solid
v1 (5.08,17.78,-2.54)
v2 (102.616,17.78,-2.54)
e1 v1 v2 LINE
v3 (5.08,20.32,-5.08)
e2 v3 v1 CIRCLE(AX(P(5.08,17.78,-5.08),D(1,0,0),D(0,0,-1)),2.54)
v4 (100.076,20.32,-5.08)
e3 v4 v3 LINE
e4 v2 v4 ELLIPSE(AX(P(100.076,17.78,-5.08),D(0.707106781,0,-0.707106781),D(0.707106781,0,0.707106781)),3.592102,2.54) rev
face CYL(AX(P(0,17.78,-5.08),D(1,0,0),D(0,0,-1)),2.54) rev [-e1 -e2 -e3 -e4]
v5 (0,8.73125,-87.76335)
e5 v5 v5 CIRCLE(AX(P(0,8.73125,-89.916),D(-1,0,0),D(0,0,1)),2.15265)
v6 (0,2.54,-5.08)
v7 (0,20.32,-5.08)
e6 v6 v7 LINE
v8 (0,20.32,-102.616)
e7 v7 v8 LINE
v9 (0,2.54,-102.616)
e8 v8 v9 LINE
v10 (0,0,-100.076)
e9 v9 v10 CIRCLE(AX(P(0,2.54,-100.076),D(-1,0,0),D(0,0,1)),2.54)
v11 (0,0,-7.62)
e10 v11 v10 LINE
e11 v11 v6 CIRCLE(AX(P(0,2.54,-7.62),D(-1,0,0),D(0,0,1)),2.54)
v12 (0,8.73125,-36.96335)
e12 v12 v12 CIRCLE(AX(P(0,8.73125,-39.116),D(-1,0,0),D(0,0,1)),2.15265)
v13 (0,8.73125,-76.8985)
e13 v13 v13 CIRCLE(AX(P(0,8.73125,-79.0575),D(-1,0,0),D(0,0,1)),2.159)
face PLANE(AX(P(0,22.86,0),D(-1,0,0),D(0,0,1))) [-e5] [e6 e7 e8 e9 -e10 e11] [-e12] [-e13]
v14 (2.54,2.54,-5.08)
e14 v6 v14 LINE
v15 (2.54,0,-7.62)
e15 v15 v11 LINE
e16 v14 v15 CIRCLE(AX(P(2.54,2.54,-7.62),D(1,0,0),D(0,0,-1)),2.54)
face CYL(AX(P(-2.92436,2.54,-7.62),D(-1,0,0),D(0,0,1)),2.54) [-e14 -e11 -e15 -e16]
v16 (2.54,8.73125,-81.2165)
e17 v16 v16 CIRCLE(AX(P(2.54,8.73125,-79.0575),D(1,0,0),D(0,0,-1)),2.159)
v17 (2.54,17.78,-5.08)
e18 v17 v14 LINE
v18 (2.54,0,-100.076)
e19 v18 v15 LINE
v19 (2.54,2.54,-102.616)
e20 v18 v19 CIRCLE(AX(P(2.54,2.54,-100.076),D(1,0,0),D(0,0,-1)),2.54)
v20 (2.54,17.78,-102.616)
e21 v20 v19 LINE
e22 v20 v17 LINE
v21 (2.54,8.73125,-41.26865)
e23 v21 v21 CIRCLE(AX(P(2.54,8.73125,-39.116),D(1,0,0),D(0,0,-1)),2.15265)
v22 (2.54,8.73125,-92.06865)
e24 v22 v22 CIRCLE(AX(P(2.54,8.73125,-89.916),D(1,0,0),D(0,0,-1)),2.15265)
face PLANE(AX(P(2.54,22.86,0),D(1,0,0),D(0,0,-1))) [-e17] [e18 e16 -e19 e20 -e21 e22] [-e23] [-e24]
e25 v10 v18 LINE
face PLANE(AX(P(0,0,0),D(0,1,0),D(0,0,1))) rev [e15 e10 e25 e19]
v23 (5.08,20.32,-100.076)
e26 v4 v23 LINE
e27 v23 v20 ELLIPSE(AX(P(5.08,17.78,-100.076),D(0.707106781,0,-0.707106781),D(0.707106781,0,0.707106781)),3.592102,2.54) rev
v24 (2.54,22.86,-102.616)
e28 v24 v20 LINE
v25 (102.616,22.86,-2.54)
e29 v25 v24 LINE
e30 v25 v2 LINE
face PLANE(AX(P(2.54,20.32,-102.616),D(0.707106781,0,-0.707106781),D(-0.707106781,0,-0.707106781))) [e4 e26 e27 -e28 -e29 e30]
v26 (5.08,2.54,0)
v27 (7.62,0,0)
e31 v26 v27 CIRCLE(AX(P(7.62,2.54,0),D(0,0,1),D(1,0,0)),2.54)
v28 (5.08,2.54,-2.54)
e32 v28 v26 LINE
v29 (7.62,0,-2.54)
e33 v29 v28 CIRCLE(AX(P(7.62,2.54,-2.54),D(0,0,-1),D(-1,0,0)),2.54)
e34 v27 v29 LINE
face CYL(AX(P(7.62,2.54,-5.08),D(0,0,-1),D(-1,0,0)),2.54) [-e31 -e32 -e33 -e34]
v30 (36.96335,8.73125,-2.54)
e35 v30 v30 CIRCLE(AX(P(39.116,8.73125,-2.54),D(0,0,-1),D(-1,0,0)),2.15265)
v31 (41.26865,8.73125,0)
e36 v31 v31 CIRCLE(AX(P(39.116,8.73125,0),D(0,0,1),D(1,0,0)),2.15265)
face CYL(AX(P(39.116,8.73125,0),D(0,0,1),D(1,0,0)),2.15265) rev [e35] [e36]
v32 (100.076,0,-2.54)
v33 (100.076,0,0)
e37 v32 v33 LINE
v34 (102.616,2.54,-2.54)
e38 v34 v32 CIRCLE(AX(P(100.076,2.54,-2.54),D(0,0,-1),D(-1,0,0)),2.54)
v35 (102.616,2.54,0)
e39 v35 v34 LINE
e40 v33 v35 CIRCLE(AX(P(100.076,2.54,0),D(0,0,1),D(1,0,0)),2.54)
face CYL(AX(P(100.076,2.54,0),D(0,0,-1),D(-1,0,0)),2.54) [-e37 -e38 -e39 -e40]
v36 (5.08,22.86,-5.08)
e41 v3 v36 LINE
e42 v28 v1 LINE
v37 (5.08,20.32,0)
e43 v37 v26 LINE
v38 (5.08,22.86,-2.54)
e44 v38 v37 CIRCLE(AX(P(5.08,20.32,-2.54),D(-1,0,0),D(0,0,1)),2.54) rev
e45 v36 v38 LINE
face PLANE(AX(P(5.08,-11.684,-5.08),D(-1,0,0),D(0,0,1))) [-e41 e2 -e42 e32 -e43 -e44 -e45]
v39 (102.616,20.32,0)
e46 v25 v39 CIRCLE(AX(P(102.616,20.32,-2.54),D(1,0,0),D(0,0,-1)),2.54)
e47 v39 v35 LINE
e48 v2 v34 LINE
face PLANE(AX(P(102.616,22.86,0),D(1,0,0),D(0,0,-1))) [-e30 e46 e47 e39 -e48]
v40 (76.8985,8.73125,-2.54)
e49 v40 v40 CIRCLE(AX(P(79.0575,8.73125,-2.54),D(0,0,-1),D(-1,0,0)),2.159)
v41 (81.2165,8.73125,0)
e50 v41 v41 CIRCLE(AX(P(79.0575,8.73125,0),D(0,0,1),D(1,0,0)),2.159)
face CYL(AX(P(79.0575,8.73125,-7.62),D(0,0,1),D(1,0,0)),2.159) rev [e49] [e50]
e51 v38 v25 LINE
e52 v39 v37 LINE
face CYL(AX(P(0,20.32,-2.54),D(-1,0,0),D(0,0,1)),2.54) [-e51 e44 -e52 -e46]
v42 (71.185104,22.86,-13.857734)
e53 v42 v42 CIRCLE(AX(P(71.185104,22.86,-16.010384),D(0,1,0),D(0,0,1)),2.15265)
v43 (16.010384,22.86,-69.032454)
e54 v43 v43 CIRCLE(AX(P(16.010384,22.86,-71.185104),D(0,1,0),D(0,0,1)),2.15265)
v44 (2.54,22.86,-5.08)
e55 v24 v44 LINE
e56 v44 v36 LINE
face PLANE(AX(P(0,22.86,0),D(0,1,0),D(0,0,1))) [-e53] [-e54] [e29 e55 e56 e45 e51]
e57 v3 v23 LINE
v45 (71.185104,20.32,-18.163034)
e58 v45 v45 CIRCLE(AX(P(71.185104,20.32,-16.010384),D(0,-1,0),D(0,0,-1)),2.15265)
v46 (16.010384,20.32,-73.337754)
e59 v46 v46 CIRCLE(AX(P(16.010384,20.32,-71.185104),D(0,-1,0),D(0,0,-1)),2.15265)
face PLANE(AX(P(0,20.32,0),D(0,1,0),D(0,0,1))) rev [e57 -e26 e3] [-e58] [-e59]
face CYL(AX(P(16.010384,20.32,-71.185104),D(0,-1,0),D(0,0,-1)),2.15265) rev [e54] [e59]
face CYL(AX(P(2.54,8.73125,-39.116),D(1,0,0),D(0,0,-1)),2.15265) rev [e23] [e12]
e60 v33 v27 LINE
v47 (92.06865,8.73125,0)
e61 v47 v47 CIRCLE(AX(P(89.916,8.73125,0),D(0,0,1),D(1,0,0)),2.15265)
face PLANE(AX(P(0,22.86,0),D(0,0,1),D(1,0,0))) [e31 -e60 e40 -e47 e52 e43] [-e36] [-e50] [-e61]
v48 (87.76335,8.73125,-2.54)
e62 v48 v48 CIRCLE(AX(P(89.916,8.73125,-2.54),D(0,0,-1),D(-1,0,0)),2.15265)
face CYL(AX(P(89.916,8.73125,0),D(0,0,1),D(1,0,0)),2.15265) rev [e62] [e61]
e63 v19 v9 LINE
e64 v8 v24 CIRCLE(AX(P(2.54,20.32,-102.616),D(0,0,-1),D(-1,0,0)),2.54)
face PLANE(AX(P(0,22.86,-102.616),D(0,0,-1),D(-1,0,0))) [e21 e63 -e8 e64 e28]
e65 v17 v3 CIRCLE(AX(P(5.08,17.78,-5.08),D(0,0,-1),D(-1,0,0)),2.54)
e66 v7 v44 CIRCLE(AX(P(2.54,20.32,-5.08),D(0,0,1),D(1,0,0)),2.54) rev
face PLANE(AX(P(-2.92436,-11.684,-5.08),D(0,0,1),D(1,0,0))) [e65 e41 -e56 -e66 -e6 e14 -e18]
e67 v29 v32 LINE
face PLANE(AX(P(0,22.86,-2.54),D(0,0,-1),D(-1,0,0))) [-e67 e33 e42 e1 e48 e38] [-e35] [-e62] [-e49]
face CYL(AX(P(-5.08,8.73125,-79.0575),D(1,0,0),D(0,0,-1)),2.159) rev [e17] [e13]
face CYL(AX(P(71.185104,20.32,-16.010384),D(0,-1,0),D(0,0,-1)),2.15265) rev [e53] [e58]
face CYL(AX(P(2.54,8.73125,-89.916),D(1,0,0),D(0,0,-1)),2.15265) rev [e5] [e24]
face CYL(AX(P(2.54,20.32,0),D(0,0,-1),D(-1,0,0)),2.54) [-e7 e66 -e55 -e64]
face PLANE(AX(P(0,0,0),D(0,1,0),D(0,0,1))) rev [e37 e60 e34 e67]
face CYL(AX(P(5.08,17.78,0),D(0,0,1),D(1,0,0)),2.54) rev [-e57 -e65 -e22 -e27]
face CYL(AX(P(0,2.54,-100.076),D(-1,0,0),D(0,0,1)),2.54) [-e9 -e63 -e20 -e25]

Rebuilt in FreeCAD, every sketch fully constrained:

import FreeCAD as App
import Part
import Sketcher
from FreeCAD import Vector
Q = App.Units.Quantity


def edges_at(feature, points):
    """Names of the edges that pass closest to the given points."""
    edges = feature.Shape.Edges
    near = lambda p: min(range(len(edges)), key=lambda i: edges[i].distToShape(Part.Vertex(*p))[0])
    return sorted({f"Edge{near(p) + 1}" for p in points})

doc = App.newDocument("Part")
body = doc.addObject("PartDesign::Body", "Body")

sketch1 = body.newObject("Sketcher::SketchObject", "Sketch")
sketch1.AttachmentSupport = (doc.getObject("XZ_Plane"), [""])
sketch1.MapMode = "FlatFace"
sketch1.addGeometry(Part.LineSegment(Vector(102.6, 0, 0), Vector(102.6, -2.5, 0)), False)
sketch1.addGeometry(Part.LineSegment(Vector(102.6, -2.5, 0), Vector(2.5, -2.5, 0)), False)
sketch1.addGeometry(Part.LineSegment(Vector(2.5, -2.5, 0), Vector(2.5, -102.6, 0)), False)
sketch1.addGeometry(Part.LineSegment(Vector(2.5, -102.6, 0), Vector(0, -102.6, 0)), False)
sketch1.addGeometry(Part.LineSegment(Vector(0, -102.6, 0), Vector(0, 0, 0)), False)
sketch1.addGeometry(Part.LineSegment(Vector(0, 0, 0), Vector(102.6, 0, 0)), False)
sketch1.addConstraint(Sketcher.Constraint("Coincident", 0, 2, 1, 1))
sketch1.addConstraint(Sketcher.Constraint("Coincident", 1, 2, 2, 1))
sketch1.addConstraint(Sketcher.Constraint("Coincident", 2, 2, 3, 1))
sketch1.addConstraint(Sketcher.Constraint("Coincident", 3, 2, 4, 1))
sketch1.addConstraint(Sketcher.Constraint("Coincident", 4, 2, 5, 1))
sketch1.addConstraint(Sketcher.Constraint("Coincident", 5, 2, 0, 1))
sketch1.addConstraint(Sketcher.Constraint("Vertical", 0))
sketch1.addConstraint(Sketcher.Constraint("Horizontal", 1))
sketch1.addConstraint(Sketcher.Constraint("Vertical", 2))
sketch1.addConstraint(Sketcher.Constraint("Horizontal", 3))
sketch1.addConstraint(Sketcher.Constraint("Vertical", 4))
sketch1.addConstraint(Sketcher.Constraint("Horizontal", 5))
sketch1.addConstraint(Sketcher.Constraint("Coincident", 4, 2, -1, 1))
sketch1.addConstraint(Sketcher.Constraint("Equal", 3, 0))
sketch1.addConstraint(Sketcher.Constraint("Equal", 1, 2))
sketch1.addConstraint(Sketcher.Constraint("DistanceX", 3, 2, 3, 1, Q("0.1 in")))
sketch1.addConstraint(Sketcher.Constraint("DistanceX", 1, 2, 1, 1, Q("3.94 in")))
pad1 = body.newObject("PartDesign::Pad", "Pad")
pad1.Profile = sketch1
pad1.Length = Q("0.9 in")
pad1.Reversed = True

sketch2 = body.newObject("Sketcher::SketchObject", "Sketch001")
sketch2.AttachmentSupport = (doc.getObject("XZ_Plane"), [""])
sketch2.MapMode = "FlatFace"
sketch2.AttachmentOffset = App.Placement(Vector(0, 0, -0.9 * 25.4), App.Rotation())
sketch2.addGeometry(Part.LineSegment(Vector(103, -3, 0), Vector(3, -103, 0)), False)
sketch2.addGeometry(Part.LineSegment(Vector(3, -103, 0), Vector(3, -3, 0)), False)
sketch2.addGeometry(Part.LineSegment(Vector(3, -3, 0), Vector(103, -3, 0)), False)
sketch2.addConstraint(Sketcher.Constraint("Coincident", 0, 2, 1, 1))
sketch2.addConstraint(Sketcher.Constraint("Coincident", 1, 2, 2, 1))
sketch2.addConstraint(Sketcher.Constraint("Coincident", 2, 2, 0, 1))
sketch2.addConstraint(Sketcher.Constraint("Vertical", 1))
sketch2.addConstraint(Sketcher.Constraint("Horizontal", 2))
sketch2.addConstraint(Sketcher.Constraint("Equal", 2, 1))
sketch2.addConstraint(Sketcher.Constraint("DistanceX", 2, 1, 2, 2, Q("3.94 in")))
sketch2.addConstraint(Sketcher.Constraint("DistanceX", -1, 1, 0, 2, Q("0.1 in")))
sketch2.addConstraint(Sketcher.Constraint("DistanceY", 1, 2, -1, 1, Q("0.1 in")))
pad2 = body.newObject("PartDesign::Pad", "Pad001")
pad2.Profile = sketch2
pad2.Length = Q("0.1 in")
doc.recompute()

fillet = body.newObject("PartDesign::Fillet", "Fillet")
fillet.Base = (pad2, edges_at(pad2, [
    (0, 22.86, -51.308),
    (51.308, 22.86, 0),
    (2.54, 10.16, -2.54),
    (52.578, 20.32, -2.54),
    (2.54, 20.32, -52.578),
]))
fillet.Radius = Q("0.1 in")

sketch3 = body.newObject("Sketcher::SketchObject", "Sketch002")
sketch3.AttachmentSupport = (doc.getObject("XZ_Plane"), [""])
sketch3.MapMode = "FlatFace"
sketch3.AttachmentOffset = App.Placement(Vector(0, 0, -0.8 * 25.4), App.Rotation())
sketch3.addGeometry(Part.LineSegment(Vector(-3, 2, 0), Vector(-3, -5, 0)), False)
sketch3.addGeometry(Part.LineSegment(Vector(-3, -5, 0), Vector(5, -5, 0)), False)
sketch3.addGeometry(Part.LineSegment(Vector(5, -5, 0), Vector(5, 2, 0)), False)
sketch3.addGeometry(Part.LineSegment(Vector(5, 2, 0), Vector(-3, 2, 0)), False)
sketch3.addConstraint(Sketcher.Constraint("Coincident", 0, 2, 1, 1))
sketch3.addConstraint(Sketcher.Constraint("Coincident", 1, 2, 2, 1))
sketch3.addConstraint(Sketcher.Constraint("Coincident", 2, 2, 3, 1))
sketch3.addConstraint(Sketcher.Constraint("Coincident", 3, 2, 0, 1))
sketch3.addConstraint(Sketcher.Constraint("Vertical", 0))
sketch3.addConstraint(Sketcher.Constraint("Horizontal", 1))
sketch3.addConstraint(Sketcher.Constraint("Vertical", 2))
sketch3.addConstraint(Sketcher.Constraint("Horizontal", 3))
sketch3.addConstraint(Sketcher.Constraint("DistanceY", 0, 2, -1, 1, Q("0.2 in")))
sketch3.addConstraint(Sketcher.Constraint("DistanceX", -1, 1, 1, 2, Q("0.2 in")))
sketch3.addConstraint(Sketcher.Constraint("DistanceX", 1, 1, 1, 2, 8.00436))
sketch3.addConstraint(Sketcher.Constraint("DistanceY", 0, 2, 0, 1, 7.259841))
pocket1 = body.newObject("PartDesign::Pocket", "Pocket")
pocket1.Profile = sketch3
pocket1.Type = "ThroughAll"
pocket1.Midplane = True

sketch4 = body.newObject("Sketcher::SketchObject", "Sketch003")
sketch4.AttachmentSupport = (doc.getObject("YZ_Plane"), [""])
sketch4.MapMode = "FlatFace"
sketch4.AttachmentOffset = App.Placement(Vector(0, 0, 0.1 * 25.4), App.Rotation())
sketch4.addGeometry(Part.Circle(Vector(8.7, -39.1, 0), Vector(0, 0, 1), 2.2), False)
sketch4.addGeometry(Part.Circle(Vector(8.7, -89.9, 0), Vector(0, 0, 1), 2.2), False)
sketch4.addConstraint(Sketcher.Constraint("Equal", 0, 1))
sketch4.addConstraint(Sketcher.Constraint("Vertical", 0, 3, 1, 3))
sketch4.addConstraint(Sketcher.Constraint("DistanceY", 1, 3, 0, 3, Q("2 in")))
sketch4.addConstraint(Sketcher.Constraint("Diameter", 0, Q("0.1695 in")))
sketch4.addConstraint(Sketcher.Constraint("DistanceY", 0, 3, -1, 1, Q("1.54 in")))
sketch4.addConstraint(Sketcher.Constraint("DistanceX", -1, 1, 0, 3, Q("0.34375 in")))
doc.recompute()
hole = body.newObject("PartDesign::Hole", "Hole")
hole.Profile = sketch4
hole.ThreadType = "None"
hole.Diameter = Q("0.1695 in")
hole.DepthType = "Dimension"
hole.Depth = Q("2.93 in")
hole.DrillPoint = "Angled"
hole.DrillPointAngle = 118

sketch5 = body.newObject("Sketcher::SketchObject", "Sketch004")
sketch5.AttachmentSupport = (doc.getObject("XY_Plane"), [""])
sketch5.MapMode = "FlatFace"
sketch5.addGeometry(Part.Circle(Vector(89.9, 8.7, 0), Vector(0, 0, 1), 2.2), False)
sketch5.addGeometry(Part.Circle(Vector(39.1, 8.7, 0), Vector(0, 0, 1), 2.2), False)
sketch5.addConstraint(Sketcher.Constraint("Equal", 0, 1))
sketch5.addConstraint(Sketcher.Constraint("Horizontal", 0, 3, 1, 3))
sketch5.addConstraint(Sketcher.Constraint("DistanceX", 1, 3, 0, 3, Q("2 in")))
sketch5.addConstraint(Sketcher.Constraint("Diameter", 0, Q("0.1695 in")))
sketch5.addConstraint(Sketcher.Constraint("DistanceX", -1, 1, 0, 3, Q("3.54 in")))
sketch5.addConstraint(Sketcher.Constraint("DistanceY", -1, 1, 0, 3, Q("0.34375 in")))
doc.recompute()
hole2 = body.newObject("PartDesign::Hole", "Hole001")
hole2.Profile = sketch5
hole2.ThreadType = "None"
hole2.Diameter = Q("0.1695 in")
hole2.DepthType = "Dimension"
hole2.Depth = Q("2.93 in")
hole2.DrillPoint = "Angled"
hole2.DrillPointAngle = 118

sketch6 = body.newObject("Sketcher::SketchObject", "Sketch005")
sketch6.AttachmentSupport = (doc.getObject("XZ_Plane"), [""])
sketch6.MapMode = "FlatFace"
sketch6.AttachmentOffset = App.Placement(Vector(0, 0, -0.8 * 25.4), App.Rotation())
sketch6.addGeometry(Part.Circle(Vector(16, -71.2, 0), Vector(0, 0, 1), 2.2), False)
sketch6.addGeometry(Part.Circle(Vector(71.2, -16, 0), Vector(0, 0, 1), 2.2), False)
sketch6.addConstraint(Sketcher.Constraint("Equal", 0, 1))
sketch6.addConstraint(Sketcher.Constraint("Diameter", 0, Q("0.1695 in")))
sketch6.addConstraint(Sketcher.Constraint("DistanceX", 0, 3, 1, 3, 55.174719))
sketch6.addConstraint(Sketcher.Constraint("DistanceY", 0, 3, 1, 3, 55.174719))
sketch6.addConstraint(Sketcher.Constraint("DistanceX", -1, 1, 0, 3, 16.010384))
sketch6.addConstraint(Sketcher.Constraint("DistanceY", 0, 3, -1, 1, 71.185104))
doc.recompute()
hole3 = body.newObject("PartDesign::Hole", "Hole002")
hole3.Profile = sketch6
hole3.ThreadType = "None"
hole3.Diameter = Q("0.1695 in")
hole3.DepthType = "Dimension"
hole3.Depth = Q("2.93 in")
hole3.DrillPoint = "Angled"
hole3.DrillPointAngle = 118
doc.recompute()

fillet2 = body.newObject("PartDesign::Fillet", "Fillet001")
fillet2.Base = (hole3, edges_at(hole3, [
    (1.27, 0, -5.08),
    (5.08, 0, -1.27),
    (1.27, 0, -102.616),
    (102.616, 0, -1.27),
]))
fillet2.Radius = Q("0.1 in")

sketch7 = body.newObject("Sketcher::SketchObject", "Sketch006")
sketch7.AttachmentSupport = (doc.getObject("YZ_Plane"), [""])
sketch7.MapMode = "FlatFace"
sketch7.AttachmentOffset = App.Placement(Vector(0, 0, 0.1 * 25.4), App.Rotation())
sketch7.addGeometry(Part.Circle(Vector(8.7, -79.1, 0), Vector(0, 0, 1), 2.2), False)
sketch7.addConstraint(Sketcher.Constraint("Diameter", 0, Q("0.17 in")))
sketch7.addConstraint(Sketcher.Constraint("DistanceX", -1, 1, 0, 3, Q("0.34375 in")))
sketch7.addConstraint(Sketcher.Constraint("DistanceY", 0, 3, -1, 1, Q("3.1125 in")))
pocket2 = body.newObject("PartDesign::Pocket", "Pocket001")
pocket2.Profile = sketch7
pocket2.Length = Q("0.3 in")

sketch8 = body.newObject("Sketcher::SketchObject", "Sketch007")
sketch8.AttachmentSupport = (doc.getObject("XY_Plane"), [""])
sketch8.MapMode = "FlatFace"
sketch8.addGeometry(Part.Circle(Vector(79.1, 8.7, 0), Vector(0, 0, 1), 2.2), False)
sketch8.addConstraint(Sketcher.Constraint("Diameter", 0, Q("0.17 in")))
sketch8.addConstraint(Sketcher.Constraint("DistanceY", -1, 1, 0, 3, Q("0.34375 in")))
sketch8.addConstraint(Sketcher.Constraint("DistanceX", -1, 1, 0, 3, Q("3.1125 in")))
pocket3 = body.newObject("PartDesign::Pocket", "Pocket002")
pocket3.Profile = sketch8
pocket3.Length = Q("0.3 in")

doc.recompute()
